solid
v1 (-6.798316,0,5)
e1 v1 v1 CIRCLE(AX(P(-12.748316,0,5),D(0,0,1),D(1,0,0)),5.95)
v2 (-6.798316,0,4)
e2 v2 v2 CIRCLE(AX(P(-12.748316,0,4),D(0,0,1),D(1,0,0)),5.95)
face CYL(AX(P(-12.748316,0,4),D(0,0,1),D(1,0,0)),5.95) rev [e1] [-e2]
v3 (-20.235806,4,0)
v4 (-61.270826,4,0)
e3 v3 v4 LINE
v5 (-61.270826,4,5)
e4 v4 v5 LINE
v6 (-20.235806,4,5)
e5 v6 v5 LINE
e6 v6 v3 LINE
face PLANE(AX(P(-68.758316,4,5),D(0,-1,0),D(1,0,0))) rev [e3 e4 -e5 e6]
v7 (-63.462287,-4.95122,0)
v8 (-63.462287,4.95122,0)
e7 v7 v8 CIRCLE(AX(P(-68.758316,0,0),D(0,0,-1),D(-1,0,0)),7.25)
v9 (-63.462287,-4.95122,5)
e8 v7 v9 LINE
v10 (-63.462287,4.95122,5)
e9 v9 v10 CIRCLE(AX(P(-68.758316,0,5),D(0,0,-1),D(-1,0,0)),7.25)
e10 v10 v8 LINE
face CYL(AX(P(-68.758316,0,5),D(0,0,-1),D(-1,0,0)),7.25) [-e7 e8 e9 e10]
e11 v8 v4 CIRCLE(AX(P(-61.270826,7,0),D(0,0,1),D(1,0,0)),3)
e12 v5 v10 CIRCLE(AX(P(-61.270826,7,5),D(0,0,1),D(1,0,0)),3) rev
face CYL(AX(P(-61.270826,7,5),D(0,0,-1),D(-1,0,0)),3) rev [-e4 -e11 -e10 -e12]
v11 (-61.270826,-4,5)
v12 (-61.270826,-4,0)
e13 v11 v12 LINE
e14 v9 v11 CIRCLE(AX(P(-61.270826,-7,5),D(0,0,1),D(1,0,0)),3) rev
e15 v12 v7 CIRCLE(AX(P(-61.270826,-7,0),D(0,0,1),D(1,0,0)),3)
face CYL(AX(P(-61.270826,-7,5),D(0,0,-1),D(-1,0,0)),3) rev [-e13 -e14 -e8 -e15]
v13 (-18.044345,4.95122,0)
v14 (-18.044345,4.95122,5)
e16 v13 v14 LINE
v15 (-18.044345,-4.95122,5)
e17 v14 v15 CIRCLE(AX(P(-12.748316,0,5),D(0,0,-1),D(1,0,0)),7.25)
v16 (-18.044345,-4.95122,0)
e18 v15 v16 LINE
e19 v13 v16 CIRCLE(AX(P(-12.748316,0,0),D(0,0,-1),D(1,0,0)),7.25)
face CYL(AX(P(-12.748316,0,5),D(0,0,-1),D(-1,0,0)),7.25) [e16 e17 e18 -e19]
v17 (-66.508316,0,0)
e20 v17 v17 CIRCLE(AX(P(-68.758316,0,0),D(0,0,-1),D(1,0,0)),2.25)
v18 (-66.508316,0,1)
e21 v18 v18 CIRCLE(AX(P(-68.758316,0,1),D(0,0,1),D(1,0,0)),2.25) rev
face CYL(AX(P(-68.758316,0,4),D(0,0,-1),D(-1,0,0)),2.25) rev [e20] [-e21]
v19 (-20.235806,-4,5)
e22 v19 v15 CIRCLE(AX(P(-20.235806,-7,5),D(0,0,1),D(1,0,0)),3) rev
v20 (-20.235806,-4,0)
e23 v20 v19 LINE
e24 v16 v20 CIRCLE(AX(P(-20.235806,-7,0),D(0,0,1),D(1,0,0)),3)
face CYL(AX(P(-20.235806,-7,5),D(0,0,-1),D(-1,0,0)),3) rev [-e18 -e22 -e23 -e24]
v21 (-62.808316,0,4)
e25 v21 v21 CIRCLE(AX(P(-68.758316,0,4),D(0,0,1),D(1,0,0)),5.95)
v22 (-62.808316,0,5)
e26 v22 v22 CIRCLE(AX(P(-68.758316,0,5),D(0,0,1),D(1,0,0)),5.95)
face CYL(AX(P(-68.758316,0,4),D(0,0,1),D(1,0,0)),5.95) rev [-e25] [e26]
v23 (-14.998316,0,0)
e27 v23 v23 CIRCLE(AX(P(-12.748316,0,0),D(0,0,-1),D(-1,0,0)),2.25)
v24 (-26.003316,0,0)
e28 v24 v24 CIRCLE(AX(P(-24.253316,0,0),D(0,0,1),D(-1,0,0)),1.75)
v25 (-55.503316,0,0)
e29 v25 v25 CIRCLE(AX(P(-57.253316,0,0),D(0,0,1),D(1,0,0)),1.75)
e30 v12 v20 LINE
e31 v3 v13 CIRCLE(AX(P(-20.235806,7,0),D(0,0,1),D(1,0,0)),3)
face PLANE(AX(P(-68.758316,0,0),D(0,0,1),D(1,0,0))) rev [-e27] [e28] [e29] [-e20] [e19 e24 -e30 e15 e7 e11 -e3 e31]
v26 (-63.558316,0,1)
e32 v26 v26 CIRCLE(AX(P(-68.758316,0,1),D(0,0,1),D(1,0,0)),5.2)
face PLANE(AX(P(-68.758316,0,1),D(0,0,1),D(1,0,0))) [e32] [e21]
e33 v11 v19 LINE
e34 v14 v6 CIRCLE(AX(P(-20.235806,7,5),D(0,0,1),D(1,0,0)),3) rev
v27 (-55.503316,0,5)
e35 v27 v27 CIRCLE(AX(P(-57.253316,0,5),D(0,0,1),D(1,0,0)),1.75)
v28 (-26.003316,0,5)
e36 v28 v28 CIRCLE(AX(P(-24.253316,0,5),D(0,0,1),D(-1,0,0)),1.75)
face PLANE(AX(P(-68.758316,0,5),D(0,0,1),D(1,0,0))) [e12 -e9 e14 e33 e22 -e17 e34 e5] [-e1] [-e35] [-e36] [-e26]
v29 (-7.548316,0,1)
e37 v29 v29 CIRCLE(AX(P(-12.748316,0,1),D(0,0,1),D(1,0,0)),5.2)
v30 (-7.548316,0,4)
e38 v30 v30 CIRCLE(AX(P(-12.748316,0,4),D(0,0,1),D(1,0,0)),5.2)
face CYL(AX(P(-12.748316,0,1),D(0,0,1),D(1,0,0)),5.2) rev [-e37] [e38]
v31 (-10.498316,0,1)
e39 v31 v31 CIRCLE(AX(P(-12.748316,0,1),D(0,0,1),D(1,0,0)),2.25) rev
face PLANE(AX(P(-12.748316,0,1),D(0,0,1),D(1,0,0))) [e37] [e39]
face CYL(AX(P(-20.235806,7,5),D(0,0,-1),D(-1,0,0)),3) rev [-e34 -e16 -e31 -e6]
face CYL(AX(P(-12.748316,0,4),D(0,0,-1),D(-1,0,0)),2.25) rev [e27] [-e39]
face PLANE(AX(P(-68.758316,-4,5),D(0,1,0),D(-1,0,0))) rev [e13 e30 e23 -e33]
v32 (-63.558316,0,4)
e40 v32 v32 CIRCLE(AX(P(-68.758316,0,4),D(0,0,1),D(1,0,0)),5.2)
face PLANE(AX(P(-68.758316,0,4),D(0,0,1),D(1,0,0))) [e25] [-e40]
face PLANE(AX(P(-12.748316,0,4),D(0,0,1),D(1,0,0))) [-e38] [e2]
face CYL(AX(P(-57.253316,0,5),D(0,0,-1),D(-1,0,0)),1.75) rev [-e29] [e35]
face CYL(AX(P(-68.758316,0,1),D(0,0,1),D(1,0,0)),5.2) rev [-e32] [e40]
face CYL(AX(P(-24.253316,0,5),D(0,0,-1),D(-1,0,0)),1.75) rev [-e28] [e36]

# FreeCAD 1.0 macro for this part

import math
import FreeCAD as App
import Part
import Sketcher


def edges_at(feature, points):
    """Names of the edges that pass closest to the given points."""
    edges = feature.Shape.Edges
    near = lambda p: min(range(len(edges)), key=lambda i: edges[i].distToShape(Part.Vertex(*p))[0])
    return sorted({f"Edge{near(p) + 1}" for p in points})

doc = App.newDocument("Part")
body = doc.addObject("PartDesign::Body", "Body")

# Sketch on XY plane
sketch1 = doc.addObject("Sketcher::SketchObject", "Sketch")
body.addObject(sketch1)
sketch1.AttachmentSupport = (doc.XY_Plane, [""])
sketch1.MapMode = "FlatFace"
sketch1.addGeometry([
    Part.LineSegment(App.Vector(-12.7, 4, 0), App.Vector(-68.8, 4, 0)),  # 0
    Part.ArcOfCircle(Part.Circle(App.Vector(-68.8, 0, 0), App.Vector(0, 0, 1), 4), math.radians(90), math.radians(270)),  # 1
    Part.LineSegment(App.Vector(-68.8, -4, 0), App.Vector(-12.7, -4, 0)),  # 2
    Part.ArcOfCircle(Part.Circle(App.Vector(-12.7, 0, 0), App.Vector(0, 0, 1), 4), math.radians(-90), math.radians(90)),  # 3
    Part.Circle(App.Vector(-24.3, 0, 0), App.Vector(0, 0, 1), 1.8),  # 4
    Part.Circle(App.Vector(-57.3, 0, 0), App.Vector(0, 0, 1), 1.8),  # 5
], False)
sketch1.addConstraint([
    Sketcher.Constraint("Tangent", 0, 2, 1, 1),
    Sketcher.Constraint("Tangent", 1, 2, 2, 1),
    Sketcher.Constraint("Tangent", 2, 2, 3, 1),
    Sketcher.Constraint("Tangent", 3, 2, 0, 1),
    Sketcher.Constraint("Horizontal", 0),
    Sketcher.Constraint("Horizontal", 2),
    Sketcher.Constraint("Equal", 4, 5),
    Sketcher.Constraint("PointOnObject", 1, 3, -1),
    Sketcher.Constraint("PointOnObject", 4, 3, -1),
    Sketcher.Constraint("PointOnObject", 5, 3, -1),
    Sketcher.Constraint("Radius", 1, 4.0),
    Sketcher.Constraint("Diameter", 4, 3.5),
    Sketcher.Constraint("DistanceX", 5, 3, 4, 3, 33.0),
    Sketcher.Constraint("DistanceX", 0, 2, 0, 1, 56.01),
    Sketcher.Constraint("DistanceX", 4, 3, 3, 3, 11.505),
    Sketcher.Constraint("DistanceX", 1, 3, -1, 1, 68.758316),
])
pad1 = doc.addObject("PartDesign::Pad", "Pad")
body.addObject(pad1)
pad1.Profile = sketch1
pad1.Length = 5

# Sketch on XY plane
sketch2 = doc.addObject("Sketcher::SketchObject", "Sketch001")
body.addObject(sketch2)
sketch2.AttachmentSupport = (doc.XY_Plane, [""])
sketch2.MapMode = "FlatFace"
sketch2.addGeometry([
    Part.Circle(App.Vector(-69, 0, 0), App.Vector(0, 0, 1), 7),
    Part.Circle(App.Vector(-13, 0, 0), App.Vector(0, 0, 1), 7),
], False)
sketch2.addConstraint([
    Sketcher.Constraint("Equal", 0, 1),
    Sketcher.Constraint("PointOnObject", 0, 3, -1),
    Sketcher.Constraint("PointOnObject", 1, 3, -1),
    Sketcher.Constraint("Diameter", 0, 14.5),
    Sketcher.Constraint("DistanceX", 0, 3, 1, 3, 56.01),
    Sketcher.Constraint("DistanceX", 0, 3, -1, 1, 68.758316),
])
pad2 = doc.addObject("PartDesign::Pad", "Pad001")
body.addObject(pad2)
pad2.Profile = sketch2
pad2.Length = 5

# Sketch on XY plane
sketch3 = doc.addObject("Sketcher::SketchObject", "Sketch002")
body.addObject(sketch3)
sketch3.AttachmentSupport = (doc.XY_Plane, [""])
sketch3.MapMode = "FlatFace"
sketch3.AttachmentOffset = App.Placement(App.Vector(0, 0, 5), App.Rotation())
sketch3.addGeometry([
    Part.Circle(App.Vector(-69, 0, 0), App.Vector(0, 0, 1), 6),
    Part.Circle(App.Vector(-13, 0, 0), App.Vector(0, 0, 1), 6),
], False)
sketch3.addConstraint([
    Sketcher.Constraint("Equal", 0, 1),
    Sketcher.Constraint("PointOnObject", 0, 3, -1),
    Sketcher.Constraint("PointOnObject", 1, 3, -1),
    Sketcher.Constraint("Diameter", 0, 11.9),
    Sketcher.Constraint("DistanceX", 0, 3, 1, 3, 56.01),
    Sketcher.Constraint("DistanceX", 0, 3, -1, 1, 68.758316),
])
pocket1 = doc.addObject("PartDesign::Pocket", "Pocket")
body.addObject(pocket1)
pocket1.Profile = sketch3
pocket1.Length = 1

# Sketch on XY plane
sketch4 = doc.addObject("Sketcher::SketchObject", "Sketch003")
body.addObject(sketch4)
sketch4.AttachmentSupport = (doc.XY_Plane, [""])
sketch4.MapMode = "FlatFace"
sketch4.addGeometry([
    Part.Circle(App.Vector(-12.7, 0, 0), App.Vector(0, 0, 1), 2.2),
    Part.Circle(App.Vector(-68.8, 0, 0), App.Vector(0, 0, 1), 2.2),
], False)
sketch4.addConstraint([
    Sketcher.Constraint("Equal", 0, 1),
    Sketcher.Constraint("PointOnObject", 0, 3, -1),
    Sketcher.Constraint("PointOnObject", 1, 3, -1),
    Sketcher.Constraint("Diameter", 0, 4.5),
    Sketcher.Constraint("DistanceX", 1, 3, 0, 3, 56.01),
    Sketcher.Constraint("DistanceX", 0, 3, -1, 1, 12.748316),
])
pocket2 = doc.addObject("PartDesign::Pocket", "Pocket001")
body.addObject(pocket2)
pocket2.Profile = sketch4
pocket2.Length = 4
pocket2.Reversed = True
doc.recompute()

fillet = doc.addObject("PartDesign::Fillet", "Fillet")
body.addObject(fillet)
fillet.Base = (pocket2, edges_at(pocket2, [
    (-62.712, 4, 2.5),
    (-62.712, -4, 2.5),
    (-18.795, 4, 2.5),
    (-18.795, -4, 2.5),
]))
fillet.Radius = 3

# Sketch on XY plane
sketch5 = doc.addObject("Sketcher::SketchObject", "Sketch004")
body.addObject(sketch5)
sketch5.AttachmentSupport = (doc.XY_Plane, [""])
sketch5.MapMode = "FlatFace"
sketch5.AttachmentOffset = App.Placement(App.Vector(0, 0, 4), App.Rotation())
sketch5.addGeometry([
    Part.Circle(App.Vector(-69, 0, 0), App.Vector(0, 0, 1), 5),
    Part.Circle(App.Vector(-13, 0, 0), App.Vector(0, 0, 1), 5),
], False)
sketch5.addConstraint([
    Sketcher.Constraint("Equal", 0, 1),
    Sketcher.Constraint("PointOnObject", 0, 3, -1),
    Sketcher.Constraint("PointOnObject", 1, 3, -1),
    Sketcher.Constraint("Diameter", 0, 10.4),
    Sketcher.Constraint("DistanceX", 0, 3, 1, 3, 56.01),
    Sketcher.Constraint("DistanceX", 0, 3, -1, 1, 68.758316),
])
pocket3 = doc.addObject("PartDesign::Pocket", "Pocket002")
body.addObject(pocket3)
pocket3.Profile = sketch5
pocket3.Length = 3

doc.recompute()
